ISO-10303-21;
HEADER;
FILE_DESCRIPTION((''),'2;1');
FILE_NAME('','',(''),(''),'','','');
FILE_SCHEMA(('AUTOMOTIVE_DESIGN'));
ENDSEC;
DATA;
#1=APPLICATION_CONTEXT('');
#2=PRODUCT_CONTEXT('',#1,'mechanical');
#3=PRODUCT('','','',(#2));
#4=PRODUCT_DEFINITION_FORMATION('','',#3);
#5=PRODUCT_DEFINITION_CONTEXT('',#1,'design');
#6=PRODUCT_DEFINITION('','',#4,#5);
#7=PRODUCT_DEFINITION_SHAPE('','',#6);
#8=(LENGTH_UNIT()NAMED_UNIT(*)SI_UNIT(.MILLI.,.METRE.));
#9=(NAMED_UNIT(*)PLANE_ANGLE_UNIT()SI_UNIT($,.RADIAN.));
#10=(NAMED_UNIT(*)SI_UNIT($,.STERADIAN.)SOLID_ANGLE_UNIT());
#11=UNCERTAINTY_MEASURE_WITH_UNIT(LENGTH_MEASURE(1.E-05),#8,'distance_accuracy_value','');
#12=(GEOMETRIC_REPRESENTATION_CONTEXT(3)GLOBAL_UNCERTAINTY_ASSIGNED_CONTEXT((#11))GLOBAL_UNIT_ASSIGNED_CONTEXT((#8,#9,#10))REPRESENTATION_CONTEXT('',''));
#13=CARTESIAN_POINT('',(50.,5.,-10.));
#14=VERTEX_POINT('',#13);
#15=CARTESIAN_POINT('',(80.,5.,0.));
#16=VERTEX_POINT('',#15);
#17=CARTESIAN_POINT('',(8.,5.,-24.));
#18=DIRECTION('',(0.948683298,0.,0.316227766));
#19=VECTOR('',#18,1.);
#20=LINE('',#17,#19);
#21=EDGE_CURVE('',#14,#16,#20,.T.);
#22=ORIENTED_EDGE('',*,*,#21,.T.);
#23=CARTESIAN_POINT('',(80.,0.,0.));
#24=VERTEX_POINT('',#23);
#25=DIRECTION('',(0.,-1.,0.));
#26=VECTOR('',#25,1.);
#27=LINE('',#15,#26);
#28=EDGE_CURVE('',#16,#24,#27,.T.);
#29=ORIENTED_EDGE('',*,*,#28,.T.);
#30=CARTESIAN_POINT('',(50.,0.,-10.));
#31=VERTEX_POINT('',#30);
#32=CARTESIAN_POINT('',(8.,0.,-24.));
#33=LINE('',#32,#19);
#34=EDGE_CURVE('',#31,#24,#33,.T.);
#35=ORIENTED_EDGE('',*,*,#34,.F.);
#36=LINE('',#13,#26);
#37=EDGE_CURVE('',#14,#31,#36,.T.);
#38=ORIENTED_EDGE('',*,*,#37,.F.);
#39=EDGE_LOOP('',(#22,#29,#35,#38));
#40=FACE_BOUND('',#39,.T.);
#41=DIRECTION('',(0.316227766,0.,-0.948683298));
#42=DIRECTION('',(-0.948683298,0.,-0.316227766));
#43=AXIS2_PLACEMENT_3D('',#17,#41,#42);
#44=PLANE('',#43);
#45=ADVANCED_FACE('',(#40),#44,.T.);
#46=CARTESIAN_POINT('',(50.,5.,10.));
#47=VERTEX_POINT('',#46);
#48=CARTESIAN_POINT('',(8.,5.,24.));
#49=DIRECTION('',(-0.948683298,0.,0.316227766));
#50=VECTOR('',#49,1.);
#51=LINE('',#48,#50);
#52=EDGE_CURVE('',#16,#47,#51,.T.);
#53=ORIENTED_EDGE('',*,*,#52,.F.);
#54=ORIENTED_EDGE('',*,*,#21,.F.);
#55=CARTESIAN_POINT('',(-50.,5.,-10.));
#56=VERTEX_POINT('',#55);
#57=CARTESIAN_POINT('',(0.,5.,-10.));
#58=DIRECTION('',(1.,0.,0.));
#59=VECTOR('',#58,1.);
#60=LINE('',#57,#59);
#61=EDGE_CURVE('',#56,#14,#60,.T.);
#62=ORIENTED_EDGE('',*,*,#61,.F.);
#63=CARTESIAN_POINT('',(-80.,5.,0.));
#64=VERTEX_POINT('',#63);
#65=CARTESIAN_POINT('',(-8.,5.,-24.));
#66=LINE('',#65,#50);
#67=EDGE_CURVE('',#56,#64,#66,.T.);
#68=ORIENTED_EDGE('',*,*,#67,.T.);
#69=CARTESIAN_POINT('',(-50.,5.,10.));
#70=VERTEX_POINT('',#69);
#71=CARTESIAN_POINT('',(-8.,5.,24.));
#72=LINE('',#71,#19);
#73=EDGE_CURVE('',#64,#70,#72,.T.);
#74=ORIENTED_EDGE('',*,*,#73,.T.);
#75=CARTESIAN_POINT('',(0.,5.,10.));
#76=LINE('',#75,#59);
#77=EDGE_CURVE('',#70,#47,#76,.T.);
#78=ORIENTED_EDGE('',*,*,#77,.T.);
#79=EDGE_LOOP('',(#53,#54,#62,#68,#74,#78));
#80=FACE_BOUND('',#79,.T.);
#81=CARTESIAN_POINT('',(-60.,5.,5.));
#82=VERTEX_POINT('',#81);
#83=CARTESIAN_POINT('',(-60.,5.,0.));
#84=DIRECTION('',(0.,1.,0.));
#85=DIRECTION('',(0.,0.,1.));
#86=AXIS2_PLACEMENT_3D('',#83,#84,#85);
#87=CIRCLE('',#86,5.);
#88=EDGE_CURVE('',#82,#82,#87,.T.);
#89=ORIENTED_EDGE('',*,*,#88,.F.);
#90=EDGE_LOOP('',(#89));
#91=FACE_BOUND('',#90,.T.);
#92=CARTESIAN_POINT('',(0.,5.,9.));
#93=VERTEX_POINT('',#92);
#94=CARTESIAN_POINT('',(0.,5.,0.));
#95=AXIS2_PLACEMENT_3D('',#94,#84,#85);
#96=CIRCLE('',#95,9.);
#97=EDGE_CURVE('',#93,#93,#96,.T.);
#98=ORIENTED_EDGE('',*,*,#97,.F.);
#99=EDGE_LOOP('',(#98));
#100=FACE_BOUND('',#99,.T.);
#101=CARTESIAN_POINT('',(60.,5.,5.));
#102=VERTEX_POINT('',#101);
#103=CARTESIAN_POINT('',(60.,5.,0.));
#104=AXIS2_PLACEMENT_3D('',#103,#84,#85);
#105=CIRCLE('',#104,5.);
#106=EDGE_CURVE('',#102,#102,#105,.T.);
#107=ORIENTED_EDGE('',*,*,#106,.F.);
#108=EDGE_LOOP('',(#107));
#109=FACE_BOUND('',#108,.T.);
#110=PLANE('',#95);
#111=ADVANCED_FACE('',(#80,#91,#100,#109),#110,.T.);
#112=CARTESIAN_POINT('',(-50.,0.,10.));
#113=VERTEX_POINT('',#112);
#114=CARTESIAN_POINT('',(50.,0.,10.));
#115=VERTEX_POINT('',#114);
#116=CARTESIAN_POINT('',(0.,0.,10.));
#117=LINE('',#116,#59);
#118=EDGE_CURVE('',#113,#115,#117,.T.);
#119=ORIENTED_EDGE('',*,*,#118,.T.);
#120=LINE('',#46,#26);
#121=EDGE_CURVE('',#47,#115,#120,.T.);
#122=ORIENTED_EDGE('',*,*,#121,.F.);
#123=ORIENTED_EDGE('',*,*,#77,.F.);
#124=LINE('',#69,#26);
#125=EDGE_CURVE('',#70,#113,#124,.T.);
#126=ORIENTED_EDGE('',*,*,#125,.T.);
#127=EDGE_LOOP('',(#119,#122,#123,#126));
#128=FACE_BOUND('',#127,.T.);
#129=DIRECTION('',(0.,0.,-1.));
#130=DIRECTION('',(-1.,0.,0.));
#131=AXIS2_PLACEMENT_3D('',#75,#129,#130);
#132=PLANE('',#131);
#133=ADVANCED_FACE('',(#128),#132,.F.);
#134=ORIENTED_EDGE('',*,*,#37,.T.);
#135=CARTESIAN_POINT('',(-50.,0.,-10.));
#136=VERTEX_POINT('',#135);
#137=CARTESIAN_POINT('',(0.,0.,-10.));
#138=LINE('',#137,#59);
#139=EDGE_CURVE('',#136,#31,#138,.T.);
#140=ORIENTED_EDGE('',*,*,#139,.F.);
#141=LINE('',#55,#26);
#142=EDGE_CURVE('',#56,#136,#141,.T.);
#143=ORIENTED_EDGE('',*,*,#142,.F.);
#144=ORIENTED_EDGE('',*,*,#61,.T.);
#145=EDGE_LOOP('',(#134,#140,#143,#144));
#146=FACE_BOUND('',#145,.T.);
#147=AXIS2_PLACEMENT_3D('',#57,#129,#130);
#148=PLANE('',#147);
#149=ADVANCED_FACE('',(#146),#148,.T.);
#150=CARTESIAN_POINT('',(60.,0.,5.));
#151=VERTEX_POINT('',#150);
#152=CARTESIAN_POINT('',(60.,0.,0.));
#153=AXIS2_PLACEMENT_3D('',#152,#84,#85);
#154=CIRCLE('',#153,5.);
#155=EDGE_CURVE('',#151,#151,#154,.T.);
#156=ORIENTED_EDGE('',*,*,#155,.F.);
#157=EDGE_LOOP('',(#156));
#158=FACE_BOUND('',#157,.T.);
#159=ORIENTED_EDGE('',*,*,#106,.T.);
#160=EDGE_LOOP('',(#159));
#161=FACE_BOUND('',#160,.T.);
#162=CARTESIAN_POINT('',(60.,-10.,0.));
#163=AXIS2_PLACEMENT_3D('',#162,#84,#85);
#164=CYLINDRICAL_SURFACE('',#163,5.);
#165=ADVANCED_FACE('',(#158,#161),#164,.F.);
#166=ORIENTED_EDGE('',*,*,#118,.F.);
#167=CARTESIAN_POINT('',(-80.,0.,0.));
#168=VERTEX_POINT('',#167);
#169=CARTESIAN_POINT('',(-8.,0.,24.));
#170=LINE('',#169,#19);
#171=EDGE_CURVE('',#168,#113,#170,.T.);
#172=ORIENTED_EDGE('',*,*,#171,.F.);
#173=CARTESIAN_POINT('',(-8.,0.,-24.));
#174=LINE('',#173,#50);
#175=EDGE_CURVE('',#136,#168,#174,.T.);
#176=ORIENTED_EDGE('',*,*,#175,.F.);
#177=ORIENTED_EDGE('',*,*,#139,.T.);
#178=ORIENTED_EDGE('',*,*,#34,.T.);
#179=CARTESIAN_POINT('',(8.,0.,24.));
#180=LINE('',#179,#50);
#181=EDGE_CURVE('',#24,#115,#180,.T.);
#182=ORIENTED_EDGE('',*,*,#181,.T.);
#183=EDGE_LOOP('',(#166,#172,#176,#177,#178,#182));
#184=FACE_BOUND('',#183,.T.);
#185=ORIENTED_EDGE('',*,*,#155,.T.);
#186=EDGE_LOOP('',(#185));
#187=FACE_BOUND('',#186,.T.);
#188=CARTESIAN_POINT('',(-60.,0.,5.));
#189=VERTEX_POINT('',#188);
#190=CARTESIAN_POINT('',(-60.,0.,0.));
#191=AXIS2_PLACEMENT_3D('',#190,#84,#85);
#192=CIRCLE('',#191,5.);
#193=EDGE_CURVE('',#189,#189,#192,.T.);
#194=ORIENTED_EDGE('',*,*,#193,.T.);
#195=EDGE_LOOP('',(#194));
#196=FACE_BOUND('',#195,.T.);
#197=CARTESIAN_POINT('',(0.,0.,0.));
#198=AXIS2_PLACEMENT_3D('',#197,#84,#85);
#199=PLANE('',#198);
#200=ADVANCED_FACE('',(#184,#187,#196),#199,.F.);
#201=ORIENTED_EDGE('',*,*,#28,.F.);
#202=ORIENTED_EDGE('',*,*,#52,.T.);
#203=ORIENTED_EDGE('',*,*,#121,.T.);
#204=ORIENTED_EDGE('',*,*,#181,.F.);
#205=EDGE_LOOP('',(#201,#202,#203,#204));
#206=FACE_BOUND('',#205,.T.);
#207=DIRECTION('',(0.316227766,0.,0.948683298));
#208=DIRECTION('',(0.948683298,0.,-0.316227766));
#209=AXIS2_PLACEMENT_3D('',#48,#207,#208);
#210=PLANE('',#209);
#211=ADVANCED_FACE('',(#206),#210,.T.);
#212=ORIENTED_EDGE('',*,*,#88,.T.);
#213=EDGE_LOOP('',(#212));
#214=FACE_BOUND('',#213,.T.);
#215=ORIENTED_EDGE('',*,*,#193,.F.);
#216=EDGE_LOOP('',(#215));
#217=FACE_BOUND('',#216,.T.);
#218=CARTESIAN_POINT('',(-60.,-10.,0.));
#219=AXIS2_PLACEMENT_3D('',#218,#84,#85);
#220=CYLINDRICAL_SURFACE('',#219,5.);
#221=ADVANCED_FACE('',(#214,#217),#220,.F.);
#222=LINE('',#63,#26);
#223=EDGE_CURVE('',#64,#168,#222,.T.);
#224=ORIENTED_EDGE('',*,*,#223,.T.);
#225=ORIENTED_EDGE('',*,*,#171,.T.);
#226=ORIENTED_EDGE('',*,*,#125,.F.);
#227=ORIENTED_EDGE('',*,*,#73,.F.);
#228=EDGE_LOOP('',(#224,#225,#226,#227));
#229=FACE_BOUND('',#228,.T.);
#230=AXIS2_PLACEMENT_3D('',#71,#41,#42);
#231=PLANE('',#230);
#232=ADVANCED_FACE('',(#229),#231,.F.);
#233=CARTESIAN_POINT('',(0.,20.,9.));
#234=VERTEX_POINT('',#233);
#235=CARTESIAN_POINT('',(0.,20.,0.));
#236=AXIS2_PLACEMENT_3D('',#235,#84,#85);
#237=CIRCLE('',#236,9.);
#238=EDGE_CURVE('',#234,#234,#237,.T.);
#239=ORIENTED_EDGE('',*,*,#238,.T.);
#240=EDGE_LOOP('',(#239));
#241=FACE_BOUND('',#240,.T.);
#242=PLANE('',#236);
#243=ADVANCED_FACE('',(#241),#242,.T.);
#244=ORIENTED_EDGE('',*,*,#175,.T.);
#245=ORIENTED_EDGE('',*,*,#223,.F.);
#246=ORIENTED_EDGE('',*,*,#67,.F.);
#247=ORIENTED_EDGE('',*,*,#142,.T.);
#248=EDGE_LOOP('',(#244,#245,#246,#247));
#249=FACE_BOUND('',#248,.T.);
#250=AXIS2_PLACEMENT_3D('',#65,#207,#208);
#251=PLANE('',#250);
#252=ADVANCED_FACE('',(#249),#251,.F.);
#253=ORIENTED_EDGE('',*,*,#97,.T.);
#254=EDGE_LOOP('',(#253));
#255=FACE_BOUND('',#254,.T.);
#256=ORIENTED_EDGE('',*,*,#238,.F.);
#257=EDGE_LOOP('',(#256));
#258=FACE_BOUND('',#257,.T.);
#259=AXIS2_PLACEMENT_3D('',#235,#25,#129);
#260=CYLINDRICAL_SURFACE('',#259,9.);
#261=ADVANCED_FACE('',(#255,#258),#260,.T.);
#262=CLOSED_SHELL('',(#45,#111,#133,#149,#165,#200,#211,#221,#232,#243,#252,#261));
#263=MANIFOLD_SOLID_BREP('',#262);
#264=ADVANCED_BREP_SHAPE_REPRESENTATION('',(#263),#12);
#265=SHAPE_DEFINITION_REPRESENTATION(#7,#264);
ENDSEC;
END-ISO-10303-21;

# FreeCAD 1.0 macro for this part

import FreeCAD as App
import Part
import Sketcher
from FreeCAD import Vector

doc = App.newDocument("Part")
body = doc.addObject("PartDesign::Body", "Body")

sketch1 = body.newObject("Sketcher::SketchObject", "Sketch")
sketch1.AttachmentSupport = (doc.getObject("XZ_Plane"), [""])
sketch1.MapMode = "FlatFace"
sketch1.addGeometry([
    Part.LineSegment(Vector(50, -10, 0), Vector(-50, -10, 0)),
    Part.LineSegment(Vector(-50, -10, 0), Vector(-80, 0, 0)),
    Part.LineSegment(Vector(-80, 0, 0), Vector(-50, 10, 0)),
    Part.LineSegment(Vector(-50, 10, 0), Vector(50, 10, 0)),
    Part.LineSegment(Vector(50, 10, 0), Vector(80, 0, 0)),
    Part.LineSegment(Vector(80, 0, 0), Vector(50, -10, 0)),
], False)
sketch1.addConstraint([
    Sketcher.Constraint("Coincident", 0, 2, 1, 1),
    Sketcher.Constraint("Coincident", 1, 2, 2, 1),
    Sketcher.Constraint("Coincident", 2, 2, 3, 1),
    Sketcher.Constraint("Coincident", 3, 2, 4, 1),
    Sketcher.Constraint("Coincident", 4, 2, 5, 1),
    Sketcher.Constraint("Coincident", 5, 2, 0, 1),
    Sketcher.Constraint("Horizontal", 0),
    Sketcher.Constraint("Horizontal", 3),
    Sketcher.Constraint("Symmetric", 0, 2, 3, 2, -1, 1),
    Sketcher.Constraint("Symmetric", 1, 2, 4, 2, -1, 1),
    Sketcher.Constraint("PointOnObject", 1, 2, -1),
    Sketcher.Constraint("Parallel", 2, 5),
    Sketcher.Constraint("Vertical", 0, 2, 2, 2),
    Sketcher.Constraint("DistanceX", 0, 2, 0, 1, 100.0),
    Sketcher.Constraint("DistanceY", 0, 2, -1, 1, 10.0),
    Sketcher.Constraint("DistanceX", 1, 2, -1, 1, 80.0),
])
pad1 = body.newObject("PartDesign::Pad", "Pad")
pad1.Profile = sketch1
pad1.Length = 5
pad1.Reversed = True

sketch2 = body.newObject("Sketcher::SketchObject", "Sketch001")
sketch2.AttachmentSupport = (doc.getObject("XZ_Plane"), [""])
sketch2.MapMode = "FlatFace"
sketch2.AttachmentOffset = App.Placement(Vector(0, 0, -5), App.Rotation())
sketch2.addGeometry(Part.Circle(Vector(0, 0, 0), Vector(0, 0, 1), 9), False)
sketch2.addConstraint([
    Sketcher.Constraint("Coincident", 0, 3, -1, 1),
    Sketcher.Constraint("Diameter", 0, 18.0),
])
pad2 = body.newObject("PartDesign::Pad", "Pad001")
pad2.Profile = sketch2
pad2.Length = 15
pad2.Reversed = True

sketch3 = body.newObject("Sketcher::SketchObject", "Sketch002")
sketch3.AttachmentSupport = (doc.getObject("XZ_Plane"), [""])
sketch3.MapMode = "FlatFace"
sketch3.AttachmentOffset = App.Placement(Vector(0, 0, -5), App.Rotation())
sketch3.addGeometry([
    Part.Circle(Vector(60, 0, 0), Vector(0, 0, 1), 5),
    Part.Circle(Vector(-60, 0, 0), Vector(0, 0, 1), 5),
], False)
sketch3.addConstraint([
    Sketcher.Constraint("Equal", 0, 1),
    Sketcher.Constraint("Symmetric", 0, 3, 1, 3, -1, 1),
    Sketcher.Constraint("PointOnObject", 0, 3, -1),
    Sketcher.Constraint("Diameter", 0, 10.0),
    Sketcher.Constraint("DistanceX", -1, 1, 0, 3, 60.0),
])
pocket1 = body.newObject("PartDesign::Pocket", "Pocket")
pocket1.Profile = sketch3
pocket1.Length = 15
pocket1.Reversed = True

doc.recompute()
